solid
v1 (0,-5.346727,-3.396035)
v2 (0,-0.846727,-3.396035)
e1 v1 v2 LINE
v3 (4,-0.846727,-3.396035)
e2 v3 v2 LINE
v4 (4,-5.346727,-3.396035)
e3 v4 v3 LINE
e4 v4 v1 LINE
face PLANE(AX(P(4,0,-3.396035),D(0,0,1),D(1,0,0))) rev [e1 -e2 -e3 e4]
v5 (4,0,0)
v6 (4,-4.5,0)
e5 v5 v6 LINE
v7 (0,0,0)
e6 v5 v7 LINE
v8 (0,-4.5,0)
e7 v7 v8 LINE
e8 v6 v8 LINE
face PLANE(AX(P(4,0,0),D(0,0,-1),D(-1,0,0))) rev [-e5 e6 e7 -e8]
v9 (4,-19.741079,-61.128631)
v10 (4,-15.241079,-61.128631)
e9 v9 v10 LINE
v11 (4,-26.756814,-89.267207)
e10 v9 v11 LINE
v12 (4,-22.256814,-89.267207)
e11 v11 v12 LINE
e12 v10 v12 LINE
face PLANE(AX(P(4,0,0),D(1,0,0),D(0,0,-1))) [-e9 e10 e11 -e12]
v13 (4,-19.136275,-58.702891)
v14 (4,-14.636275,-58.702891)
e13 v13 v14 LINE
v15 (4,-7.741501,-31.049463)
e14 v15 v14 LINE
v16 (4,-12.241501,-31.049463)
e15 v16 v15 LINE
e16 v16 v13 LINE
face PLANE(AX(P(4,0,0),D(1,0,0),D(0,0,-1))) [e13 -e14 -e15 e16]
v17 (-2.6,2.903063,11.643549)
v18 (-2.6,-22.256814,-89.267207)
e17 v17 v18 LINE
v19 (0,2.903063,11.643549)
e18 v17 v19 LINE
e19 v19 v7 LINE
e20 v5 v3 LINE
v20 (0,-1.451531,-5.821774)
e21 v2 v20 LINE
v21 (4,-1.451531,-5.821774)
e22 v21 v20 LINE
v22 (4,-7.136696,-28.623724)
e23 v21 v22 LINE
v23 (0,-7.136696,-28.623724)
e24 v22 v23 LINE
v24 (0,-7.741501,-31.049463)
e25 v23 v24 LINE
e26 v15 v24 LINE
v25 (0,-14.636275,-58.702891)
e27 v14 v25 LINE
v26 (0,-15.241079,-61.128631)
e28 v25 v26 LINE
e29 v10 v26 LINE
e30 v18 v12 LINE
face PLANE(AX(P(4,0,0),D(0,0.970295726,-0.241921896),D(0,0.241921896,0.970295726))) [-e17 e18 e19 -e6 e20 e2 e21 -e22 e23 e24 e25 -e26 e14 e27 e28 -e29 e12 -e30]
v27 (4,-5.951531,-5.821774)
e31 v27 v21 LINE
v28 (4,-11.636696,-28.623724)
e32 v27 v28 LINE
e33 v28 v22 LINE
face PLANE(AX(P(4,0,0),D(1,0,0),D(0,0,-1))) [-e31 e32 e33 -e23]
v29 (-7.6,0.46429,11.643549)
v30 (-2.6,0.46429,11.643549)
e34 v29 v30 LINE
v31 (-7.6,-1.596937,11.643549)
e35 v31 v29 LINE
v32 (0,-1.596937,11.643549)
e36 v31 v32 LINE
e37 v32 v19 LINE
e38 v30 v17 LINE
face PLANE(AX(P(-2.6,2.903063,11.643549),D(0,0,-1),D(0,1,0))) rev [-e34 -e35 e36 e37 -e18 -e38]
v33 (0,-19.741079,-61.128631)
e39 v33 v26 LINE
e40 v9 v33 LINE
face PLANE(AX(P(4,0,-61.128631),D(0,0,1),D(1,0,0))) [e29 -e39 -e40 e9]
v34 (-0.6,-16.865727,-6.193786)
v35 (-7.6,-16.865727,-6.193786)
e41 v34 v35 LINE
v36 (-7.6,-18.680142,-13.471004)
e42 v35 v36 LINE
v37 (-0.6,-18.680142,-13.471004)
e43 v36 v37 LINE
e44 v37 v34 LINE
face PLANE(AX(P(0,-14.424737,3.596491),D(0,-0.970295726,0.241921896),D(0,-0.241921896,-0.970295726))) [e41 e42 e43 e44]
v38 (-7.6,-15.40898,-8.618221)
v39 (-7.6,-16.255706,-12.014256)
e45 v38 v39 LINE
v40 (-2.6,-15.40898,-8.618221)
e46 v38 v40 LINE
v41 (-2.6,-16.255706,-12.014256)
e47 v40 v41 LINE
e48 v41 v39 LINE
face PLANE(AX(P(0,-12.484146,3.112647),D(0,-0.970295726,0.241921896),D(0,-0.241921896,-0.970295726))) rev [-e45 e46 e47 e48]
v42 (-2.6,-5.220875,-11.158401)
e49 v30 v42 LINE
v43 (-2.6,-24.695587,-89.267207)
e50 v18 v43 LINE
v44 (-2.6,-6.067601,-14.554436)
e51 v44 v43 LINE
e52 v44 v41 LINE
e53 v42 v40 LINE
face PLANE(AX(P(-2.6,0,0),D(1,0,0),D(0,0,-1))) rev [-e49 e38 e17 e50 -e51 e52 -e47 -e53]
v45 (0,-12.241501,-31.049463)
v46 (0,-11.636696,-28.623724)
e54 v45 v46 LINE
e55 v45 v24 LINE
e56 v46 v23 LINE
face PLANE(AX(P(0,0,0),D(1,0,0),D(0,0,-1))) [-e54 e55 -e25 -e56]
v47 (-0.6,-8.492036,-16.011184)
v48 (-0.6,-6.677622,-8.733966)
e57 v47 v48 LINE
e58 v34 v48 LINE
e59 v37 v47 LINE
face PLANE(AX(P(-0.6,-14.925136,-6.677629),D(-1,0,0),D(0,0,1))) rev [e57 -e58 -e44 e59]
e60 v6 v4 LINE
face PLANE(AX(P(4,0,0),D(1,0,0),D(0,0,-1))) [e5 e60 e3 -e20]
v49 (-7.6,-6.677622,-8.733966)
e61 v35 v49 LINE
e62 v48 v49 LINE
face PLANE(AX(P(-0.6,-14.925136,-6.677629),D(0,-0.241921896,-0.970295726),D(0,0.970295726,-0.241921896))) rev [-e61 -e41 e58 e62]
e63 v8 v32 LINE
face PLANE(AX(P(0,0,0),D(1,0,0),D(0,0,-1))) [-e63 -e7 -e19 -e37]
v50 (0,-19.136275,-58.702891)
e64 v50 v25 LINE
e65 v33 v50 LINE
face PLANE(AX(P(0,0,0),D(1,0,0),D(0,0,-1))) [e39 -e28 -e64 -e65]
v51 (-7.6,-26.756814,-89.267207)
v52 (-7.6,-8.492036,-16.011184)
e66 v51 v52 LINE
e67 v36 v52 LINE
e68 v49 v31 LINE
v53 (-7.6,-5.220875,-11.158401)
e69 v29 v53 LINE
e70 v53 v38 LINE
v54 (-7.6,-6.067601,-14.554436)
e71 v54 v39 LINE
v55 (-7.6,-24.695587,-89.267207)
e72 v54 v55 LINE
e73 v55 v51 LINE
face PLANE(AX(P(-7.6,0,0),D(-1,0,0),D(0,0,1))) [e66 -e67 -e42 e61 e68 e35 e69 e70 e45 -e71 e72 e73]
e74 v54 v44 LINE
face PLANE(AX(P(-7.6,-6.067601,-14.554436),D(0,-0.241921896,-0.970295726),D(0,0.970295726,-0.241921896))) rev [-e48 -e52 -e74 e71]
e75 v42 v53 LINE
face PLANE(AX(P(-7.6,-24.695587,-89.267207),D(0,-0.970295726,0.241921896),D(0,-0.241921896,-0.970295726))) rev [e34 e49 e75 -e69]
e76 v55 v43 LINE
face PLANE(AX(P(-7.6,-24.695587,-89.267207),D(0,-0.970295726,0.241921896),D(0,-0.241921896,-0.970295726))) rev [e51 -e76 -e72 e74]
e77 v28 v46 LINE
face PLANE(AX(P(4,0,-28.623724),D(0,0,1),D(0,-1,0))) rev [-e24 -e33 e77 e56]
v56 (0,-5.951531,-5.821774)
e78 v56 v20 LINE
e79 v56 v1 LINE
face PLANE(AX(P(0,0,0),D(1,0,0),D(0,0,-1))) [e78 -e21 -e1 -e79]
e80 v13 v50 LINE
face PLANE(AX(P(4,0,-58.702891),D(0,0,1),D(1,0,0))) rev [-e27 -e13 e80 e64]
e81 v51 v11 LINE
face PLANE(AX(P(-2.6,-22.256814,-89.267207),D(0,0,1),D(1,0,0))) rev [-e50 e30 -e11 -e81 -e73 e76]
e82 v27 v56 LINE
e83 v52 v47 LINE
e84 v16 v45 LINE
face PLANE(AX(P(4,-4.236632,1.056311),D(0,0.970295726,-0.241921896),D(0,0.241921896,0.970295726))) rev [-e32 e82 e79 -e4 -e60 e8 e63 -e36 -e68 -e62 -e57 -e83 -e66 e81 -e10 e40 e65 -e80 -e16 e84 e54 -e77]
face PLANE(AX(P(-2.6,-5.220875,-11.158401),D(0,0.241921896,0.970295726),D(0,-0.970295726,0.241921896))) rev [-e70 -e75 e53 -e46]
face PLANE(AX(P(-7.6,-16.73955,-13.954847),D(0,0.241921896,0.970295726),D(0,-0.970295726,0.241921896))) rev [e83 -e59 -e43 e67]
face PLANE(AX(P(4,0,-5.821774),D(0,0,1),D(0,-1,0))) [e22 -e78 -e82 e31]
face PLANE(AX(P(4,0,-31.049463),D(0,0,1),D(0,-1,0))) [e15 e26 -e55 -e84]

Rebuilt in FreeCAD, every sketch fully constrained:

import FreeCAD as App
import Part
import Sketcher
Q = App.Units.Quantity


def add_polygon(sketch, points):
    """Adds a closed chain of lines whose ends are joined by coincident constraints."""
    first, n = sketch.GeometryCount, len(points)
    for a, b in zip(points, points[1:] + points[:1]):
        sketch.addGeometry(Part.LineSegment(App.Vector(*a, 0), App.Vector(*b, 0)), False)
    for i in range(n):
        sketch.addConstraint(Sketcher.Constraint("Coincident", first + i, 2, first + (i + 1) % n, 1))

doc = App.newDocument("Part")
body = doc.addObject("PartDesign::Body", "Body")

sketch1 = body.newObject("Sketcher::SketchObject", "Sketch")
sketch1.AttachmentSupport = (doc.getObject("YZ_Plane"), [""])
sketch1.MapMode = "FlatFace"
add_polygon(sketch1, [(-0.8, -3.4), (0, 0), (-4.5, 0), (-5.3, -3.4)])
sketch1.addConstraint(Sketcher.Constraint("Horizontal", 1))
sketch1.addConstraint(Sketcher.Constraint("Horizontal", 3))
sketch1.addConstraint(Sketcher.Constraint("Coincident", 0, 2, -1, 1))
sketch1.addConstraint(Sketcher.Constraint("Parallel", 0, 2))
sketch1.addConstraint(Sketcher.Constraint("Angle", 0, Q("76 deg")))
sketch1.addConstraint(Sketcher.Constraint("DistanceX", 1, 2, 1, 1, Q("4.5 mm")))
sketch1.addConstraint(Sketcher.Constraint("Distance", 0, Q("3.5 mm")))
pad1 = body.newObject("PartDesign::Pad", "Pad")
pad1.Profile = sketch1
pad1.Length = 4
body2 = doc.addObject("PartDesign::Body", "Body001")

sketch2 = body2.newObject("Sketcher::SketchObject", "Sketch001")
sketch2.AttachmentSupport = (doc.getObject("YZ_Plane001"), [""])
sketch2.MapMode = "FlatFace"
add_polygon(sketch2, [(-7.1, -28.6), (-1.5, -5.8), (-6, -5.8), (-11.6, -28.6)])
sketch2.addConstraint(Sketcher.Constraint("Horizontal", 1))
sketch2.addConstraint(Sketcher.Constraint("Horizontal", 3))
sketch2.addConstraint(Sketcher.Constraint("Parallel", 0, 2))
sketch2.addConstraint(Sketcher.Constraint("Angle", 0, Q("76 deg")))
sketch2.addConstraint(Sketcher.Constraint("DistanceX", 1, 2, 1, 1, Q("4.5 mm")))
sketch2.addConstraint(Sketcher.Constraint("Distance", 0, Q("23.5 mm")))
sketch2.addConstraint(Sketcher.Constraint("DistanceX", 0, 2, -1, 1, Q("1.451531 mm")))
sketch2.addConstraint(Sketcher.Constraint("DistanceY", 0, 2, -1, 1, Q("5.821774 mm")))
pad2 = body2.newObject("PartDesign::Pad", "Pad001")
pad2.Profile = sketch2
pad2.Length = 4
body3 = doc.addObject("PartDesign::Body", "Body002")

sketch3 = body3.newObject("Sketcher::SketchObject", "Sketch002")
sketch3.AttachmentSupport = (doc.getObject("YZ_Plane002"), [""])
sketch3.MapMode = "FlatFace"
add_polygon(sketch3, [(-14.6, -58.7), (-7.7, -31), (-12.2, -31), (-19.1, -58.7)])
sketch3.addConstraint(Sketcher.Constraint("Horizontal", 1))
sketch3.addConstraint(Sketcher.Constraint("Horizontal", 3))
sketch3.addConstraint(Sketcher.Constraint("Parallel", 0, 2))
sketch3.addConstraint(Sketcher.Constraint("Angle", 0, Q("76 deg")))
sketch3.addConstraint(Sketcher.Constraint("DistanceX", 1, 2, 1, 1, Q("4.5 mm")))
sketch3.addConstraint(Sketcher.Constraint("Distance", 0, Q("28.5 mm")))
sketch3.addConstraint(Sketcher.Constraint("DistanceX", 0, 2, -1, 1, Q("7.741501 mm")))
sketch3.addConstraint(Sketcher.Constraint("DistanceY", 2, 2, -1, 1, Q("58.702891 mm")))
pad3 = body3.newObject("PartDesign::Pad", "Pad002")
pad3.Profile = sketch3
pad3.Length = 4
body4 = doc.addObject("PartDesign::Body", "Body003")

sketch4 = body4.newObject("Sketcher::SketchObject", "Sketch003")
sketch4.AttachmentSupport = (doc.getObject("YZ_Plane003"), [""])
sketch4.MapMode = "FlatFace"
add_polygon(sketch4, [(-22.3, -89.3), (-15.2, -61.1), (-19.7, -61.1), (-26.8, -89.3)])
sketch4.addConstraint(Sketcher.Constraint("Horizontal", 1))
sketch4.addConstraint(Sketcher.Constraint("Horizontal", 3))
sketch4.addConstraint(Sketcher.Constraint("Parallel", 0, 2))
sketch4.addConstraint(Sketcher.Constraint("Angle", 0, Q("76 deg")))
sketch4.addConstraint(Sketcher.Constraint("Distance", 0, Q("29 mm")))
sketch4.addConstraint(Sketcher.Constraint("DistanceX", 1, 2, 1, 1, Q("4.5 mm")))
sketch4.addConstraint(Sketcher.Constraint("DistanceX", 0, 2, -1, 1, Q("15.241079 mm")))
sketch4.addConstraint(Sketcher.Constraint("DistanceY", 0, 2, -1, 1, Q("61.128631 mm")))
pad4 = body4.newObject("PartDesign::Pad", "Pad003")
pad4.Profile = sketch4
pad4.Length = 4
body.AllowCompound = True
doc.recompute()

boolean = body.newObject("PartDesign::Boolean", "Boolean")
boolean.Type = "Fuse"
boolean.addObjects([body2])
doc.recompute()

boolean2 = body.newObject("PartDesign::Boolean", "Boolean001")
boolean2.Type = "Fuse"
boolean2.addObjects([body3])
doc.recompute()

boolean3 = body.newObject("PartDesign::Boolean", "Boolean002")
boolean3.Type = "Fuse"
boolean3.addObjects([body4])

sketch5 = body.newObject("Sketcher::SketchObject", "Sketch004")
sketch5.AttachmentSupport = (doc.getObject("YZ_Plane"), [""])
sketch5.MapMode = "FlatFace"
add_polygon(sketch5, [(-22.3, -89.3), (-26.8, -89.3), (-1.6, 11.6), (2.9, 11.6)])
sketch5.addConstraint(Sketcher.Constraint("Horizontal", 0))
sketch5.addConstraint(Sketcher.Constraint("Horizontal", 2))
sketch5.addConstraint(Sketcher.Constraint("Parallel", 1, 3))
sketch5.addConstraint(Sketcher.Constraint("Angle", 1, Q("76 deg")))
sketch5.addConstraint(Sketcher.Constraint("Distance", 1, Q("104 mm")))
sketch5.addConstraint(Sketcher.Constraint("DistanceX", 0, 2, 0, 1, Q("4.5 mm")))
sketch5.addConstraint(Sketcher.Constraint("DistanceY", -1, 1, 1, 2, Q("11.643549 mm")))
sketch5.addConstraint(Sketcher.Constraint("DistanceX", 0, 2, -1, 1, Q("26.756814 mm")))
pad5 = body.newObject("PartDesign::Pad", "Pad004")
pad5.Profile = sketch5
pad5.Length = 2.6
pad5.Reversed = True

sketch6 = body.newObject("Sketcher::SketchObject", "Sketch005")
sketch6.AttachmentSupport = (doc.getObject("YZ_Plane"), [""])
sketch6.MapMode = "FlatFace"
sketch6.AttachmentOffset = App.Placement(App.Vector(0, 0, -2.6), App.Rotation())
add_polygon(sketch6, [(0.5, 11.6), (-24.7, -89.3), (-26.8, -89.3), (-1.6, 11.6)])
sketch6.addConstraint(Sketcher.Constraint("Horizontal", 1))
sketch6.addConstraint(Sketcher.Constraint("Horizontal", 3))
sketch6.addConstraint(Sketcher.Constraint("Parallel", 0, 2))
sketch6.addConstraint(Sketcher.Constraint("Angle", 0, Q("-104 deg")))
sketch6.addConstraint(Sketcher.Constraint("Distance", 0, Q("104 mm")))
sketch6.addConstraint(Sketcher.Constraint("DistanceX", 1, 2, 1, 1, Q("2.061227 mm")))
sketch6.addConstraint(Sketcher.Constraint("DistanceY", -1, 1, 2, 2, Q("11.643549 mm")))
sketch6.addConstraint(Sketcher.Constraint("DistanceX", -1, 1, 3, 2, Q("0.46429 mm")))
pad6 = body.newObject("PartDesign::Pad", "Pad005")
pad6.Profile = sketch6
pad6.Length = 5
pad6.Reversed = True

sketch7 = body.newObject("Sketcher::SketchObject", "Sketch006")
sketch7.Placement = App.Placement(App.Vector(0, -4.236632, 1.056311), App.Rotation(App.Vector(1, 0, 0), App.Vector(0, 0.241921896, 0.970295726), App.Vector(0, -0.970295726, 0.241921896), "ZXY"))
add_polygon(sketch7, [(-7.6, -12.1), (-7.6, -15.6), (-2.6, -15.6), (-2.6, -12.1)])
sketch7.addConstraint(Sketcher.Constraint("Vertical", 0))
sketch7.addConstraint(Sketcher.Constraint("Horizontal", 1))
sketch7.addConstraint(Sketcher.Constraint("Vertical", 2))
sketch7.addConstraint(Sketcher.Constraint("Horizontal", 3))
sketch7.addConstraint(Sketcher.Constraint("DistanceX", 1, 1, 1, 2, Q("5 mm")))
sketch7.addConstraint(Sketcher.Constraint("DistanceY", 0, 2, 0, 1, Q("3.5 mm")))
sketch7.addConstraint(Sketcher.Constraint("DistanceX", 0, 2, -1, 1, Q("7.6 mm")))
sketch7.addConstraint(Sketcher.Constraint("DistanceY", 0, 2, -1, 1, Q("15.589993 mm")))
pocket1 = body.newObject("PartDesign::Pocket", "Pocket")
pocket1.Profile = sketch7
pocket1.Length = 2

sketch8 = body.newObject("Sketcher::SketchObject", "Sketch007")
sketch8.Placement = App.Placement(App.Vector(0, -4.236632, 1.056311), App.Rotation(App.Vector(1, 0, 0), App.Vector(0, 0.241921896, 0.970295726), App.Vector(0, -0.970295726, 0.241921896), "ZXY"))
add_polygon(sketch8, [(-7.6, -12.1), (-2.6, -12.1), (-2.6, -15.6), (-7.6, -15.6), (-7.6, -17.6), (-0.6, -17.6), (-0.6, -10.1), (-7.6, -10.1)])
sketch8.addConstraint(Sketcher.Constraint("Horizontal", 0))
sketch8.addConstraint(Sketcher.Constraint("Vertical", 1))
sketch8.addConstraint(Sketcher.Constraint("Horizontal", 2))
sketch8.addConstraint(Sketcher.Constraint("Vertical", 3))
sketch8.addConstraint(Sketcher.Constraint("Horizontal", 4))
sketch8.addConstraint(Sketcher.Constraint("Vertical", 5))
sketch8.addConstraint(Sketcher.Constraint("Horizontal", 6))
sketch8.addConstraint(Sketcher.Constraint("Vertical", 7))
sketch8.addConstraint(Sketcher.Constraint("Vertical", 3, 2, 6, 2))
sketch8.addConstraint(Sketcher.Constraint("Equal", 3, 7))
sketch8.addConstraint(Sketcher.Constraint("DistanceX", 0, 1, 0, 2, Q("5 mm")))
sketch8.addConstraint(Sketcher.Constraint("DistanceX", 4, 1, 4, 2, Q("7 mm")))
sketch8.addConstraint(Sketcher.Constraint("DistanceY", 3, 2, 3, 1, Q("2 mm")))
sketch8.addConstraint(Sketcher.Constraint("DistanceY", 1, 2, 1, 1, Q("3.5 mm")))
sketch8.addConstraint(Sketcher.Constraint("DistanceX", 0, 2, -1, 1, Q("2.6 mm")))
sketch8.addConstraint(Sketcher.Constraint("DistanceY", 0, 2, -1, 1, Q("12.089993 mm")))
pad7 = body.newObject("PartDesign::Pad", "Pad006")
pad7.Profile = sketch8
pad7.Length = 8.5

sketch9 = body.newObject("Sketcher::SketchObject", "Sketch008")
sketch9.Placement = App.Placement(App.Vector(0, -12.484146, 3.112647), App.Rotation(App.Vector(1, 0, 0), App.Vector(0, 0.241921896, 0.970295726), App.Vector(0, -0.970295726, 0.241921896), "ZXY"))
add_polygon(sketch9, [(-8, -10), (-8, -18), (-1, -18), (-1, -10)])
sketch9.addConstraint(Sketcher.Constraint("Vertical", 0))
sketch9.addConstraint(Sketcher.Constraint("Horizontal", 1))
sketch9.addConstraint(Sketcher.Constraint("Vertical", 2))
sketch9.addConstraint(Sketcher.Constraint("Horizontal", 3))
sketch9.addConstraint(Sketcher.Constraint("DistanceX", 1, 1, 1, 2, Q("7 mm")))
sketch9.addConstraint(Sketcher.Constraint("DistanceY", 0, 2, 0, 1, Q("7.5 mm")))
sketch9.addConstraint(Sketcher.Constraint("DistanceX", 0, 2, -1, 1, Q("7.6 mm")))
sketch9.addConstraint(Sketcher.Constraint("DistanceY", 0, 2, -1, 1, Q("17.589993 mm")))
pad8 = body.newObject("PartDesign::Pad", "Pad007")
pad8.Profile = sketch9
pad8.Length = 2

doc.recompute()
